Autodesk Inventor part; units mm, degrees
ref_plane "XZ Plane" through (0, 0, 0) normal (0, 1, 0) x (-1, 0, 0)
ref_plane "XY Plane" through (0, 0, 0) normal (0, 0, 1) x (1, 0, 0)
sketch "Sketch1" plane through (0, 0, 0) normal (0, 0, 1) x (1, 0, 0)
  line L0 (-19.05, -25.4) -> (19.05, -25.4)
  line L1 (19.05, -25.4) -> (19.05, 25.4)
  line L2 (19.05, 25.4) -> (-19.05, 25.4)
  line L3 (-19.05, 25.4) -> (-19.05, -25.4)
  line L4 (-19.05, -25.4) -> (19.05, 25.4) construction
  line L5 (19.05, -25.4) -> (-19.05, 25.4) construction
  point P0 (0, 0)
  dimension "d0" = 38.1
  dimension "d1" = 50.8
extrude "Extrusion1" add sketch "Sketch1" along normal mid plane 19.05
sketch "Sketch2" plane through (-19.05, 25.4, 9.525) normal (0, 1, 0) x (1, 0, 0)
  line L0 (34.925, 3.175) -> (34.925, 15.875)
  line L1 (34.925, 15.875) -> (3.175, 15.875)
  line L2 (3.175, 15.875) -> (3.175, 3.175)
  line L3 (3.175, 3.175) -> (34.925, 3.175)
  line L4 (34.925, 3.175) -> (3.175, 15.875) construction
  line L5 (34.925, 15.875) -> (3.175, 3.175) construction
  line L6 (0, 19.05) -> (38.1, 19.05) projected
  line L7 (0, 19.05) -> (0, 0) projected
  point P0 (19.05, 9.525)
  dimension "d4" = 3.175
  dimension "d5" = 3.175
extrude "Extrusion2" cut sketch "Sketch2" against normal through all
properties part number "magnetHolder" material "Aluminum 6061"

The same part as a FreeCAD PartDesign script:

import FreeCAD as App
import Part
import Sketcher

V = App.Vector
Q = App.Units.Quantity


def add_polygon(sketch, points):
    """Adds a closed chain of lines whose ends are joined by coincident constraints."""
    first, n = sketch.GeometryCount, len(points)
    for a, b in zip(points, points[1:] + points[:1]):
        sketch.addGeometry(Part.LineSegment(App.Vector(*a, 0), App.Vector(*b, 0)), False)
    for i in range(n):
        sketch.addConstraint(Sketcher.Constraint("Coincident", first + i, 2, first + (i + 1) % n, 1))

doc = App.newDocument("Part")
body = doc.addObject("PartDesign::Body", "Body")

sketch1 = body.newObject("Sketcher::SketchObject", "Sketch")
sketch1.AttachmentSupport = (doc.getObject("XY_Plane"), [""])
sketch1.MapMode = "FlatFace"
add_polygon(sketch1, [(-19, 25), (-19, -25), (19, -25), (19, 25)])
sketch1.addConstraint([
    Sketcher.Constraint("Vertical", 0),
    Sketcher.Constraint("Horizontal", 1),
    Sketcher.Constraint("Vertical", 2),
    Sketcher.Constraint("Horizontal", 3),
    Sketcher.Constraint("Symmetric", 0, 2, 2, 2, -1, 1),
    Sketcher.Constraint("DistanceY", 0, 2, 0, 1, Q("2 in")),
    Sketcher.Constraint("DistanceX", 1, 1, 1, 2, Q("1.5 in")),
])
pad1 = body.newObject("PartDesign::Pad", "Pad")
pad1.Profile = sketch1
pad1.Length = Q("0.75 in")
pad1.Midplane = True

sketch2 = body.newObject("Sketcher::SketchObject", "Sketch001")
sketch2.AttachmentSupport = (doc.getObject("XZ_Plane"), [""])
sketch2.MapMode = "FlatFace"
sketch2.AttachmentOffset = App.Placement(V(0, 0, -1 * 25.4), App.Rotation())
add_polygon(sketch2, [(-16, 6), (16, 6), (16, -6), (-16, -6)])
sketch2.addConstraint([
    Sketcher.Constraint("Horizontal", 0),
    Sketcher.Constraint("Vertical", 1),
    Sketcher.Constraint("Horizontal", 2),
    Sketcher.Constraint("Vertical", 3),
    Sketcher.Constraint("Symmetric", 0, 2, 2, 2, -1, 1),
    Sketcher.Constraint("DistanceY", 1, 2, 1, 1, Q("0.5 in")),
    Sketcher.Constraint("DistanceX", 0, 1, 0, 2, Q("1.25 in")),
])
pocket1 = body.newObject("PartDesign::Pocket", "Pocket")
pocket1.Profile = sketch2
pocket1.Type = "ThroughAll"
pocket1.Reversed = True

doc.recompute()
